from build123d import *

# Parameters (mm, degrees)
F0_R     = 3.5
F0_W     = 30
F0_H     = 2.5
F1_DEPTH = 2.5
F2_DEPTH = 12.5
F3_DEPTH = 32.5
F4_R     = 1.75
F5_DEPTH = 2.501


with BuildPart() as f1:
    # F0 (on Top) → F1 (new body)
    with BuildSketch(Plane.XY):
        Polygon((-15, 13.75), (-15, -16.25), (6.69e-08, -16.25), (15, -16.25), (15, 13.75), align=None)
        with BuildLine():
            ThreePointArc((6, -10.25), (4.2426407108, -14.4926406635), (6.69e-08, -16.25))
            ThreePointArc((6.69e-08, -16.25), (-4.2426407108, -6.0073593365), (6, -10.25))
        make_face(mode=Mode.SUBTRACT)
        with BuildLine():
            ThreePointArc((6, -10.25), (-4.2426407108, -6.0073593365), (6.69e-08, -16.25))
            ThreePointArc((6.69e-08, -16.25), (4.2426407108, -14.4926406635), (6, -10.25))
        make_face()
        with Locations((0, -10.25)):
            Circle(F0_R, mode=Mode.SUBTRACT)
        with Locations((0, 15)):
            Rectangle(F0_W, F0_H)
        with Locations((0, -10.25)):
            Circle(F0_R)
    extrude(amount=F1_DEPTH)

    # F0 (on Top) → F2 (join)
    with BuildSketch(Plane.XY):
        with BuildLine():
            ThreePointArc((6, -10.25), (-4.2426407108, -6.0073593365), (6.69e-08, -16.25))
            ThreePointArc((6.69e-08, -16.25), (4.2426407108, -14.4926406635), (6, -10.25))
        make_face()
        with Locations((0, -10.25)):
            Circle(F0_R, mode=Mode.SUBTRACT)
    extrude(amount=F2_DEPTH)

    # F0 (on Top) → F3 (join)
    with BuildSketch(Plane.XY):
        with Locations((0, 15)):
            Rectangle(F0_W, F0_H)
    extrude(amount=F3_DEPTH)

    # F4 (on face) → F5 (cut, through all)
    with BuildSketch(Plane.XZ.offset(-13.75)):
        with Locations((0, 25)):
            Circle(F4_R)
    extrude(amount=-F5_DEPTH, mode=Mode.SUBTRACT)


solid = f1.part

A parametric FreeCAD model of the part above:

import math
import FreeCAD as App
import Part
import Sketcher
from FreeCAD import Vector
Q = App.Units.Quantity

doc = App.newDocument("Part")
body = doc.addObject("PartDesign::Body", "Body")

# Sketch on XY plane
sketch1 = body.newObject("Sketcher::SketchObject", "Sketch")
sketch1.AttachmentSupport = (doc.getObject("XY_Plane"), [""])
sketch1.MapMode = "FlatFace"
sketch1.addGeometry([
    Part.LineSegment(Vector(15, -16.25, 0), Vector(15, 16.25, 0)),
    Part.LineSegment(Vector(15, 16.25, 0), Vector(-15, 16.25, 0)),
    Part.LineSegment(Vector(-15, 16.25, 0), Vector(-15, -16.25, 0)),
    Part.LineSegment(Vector(-15, -16.25, 0), Vector(15, -16.25, 0)),
], False)
sketch1.addConstraint([
    Sketcher.Constraint("Coincident", 0, 2, 1, 1),
    Sketcher.Constraint("Coincident", 1, 2, 2, 1),
    Sketcher.Constraint("Coincident", 2, 2, 3, 1),
    Sketcher.Constraint("Coincident", 3, 2, 0, 1),
    Sketcher.Constraint("Vertical", 0),
    Sketcher.Constraint("Horizontal", 1),
    Sketcher.Constraint("Vertical", 2),
    Sketcher.Constraint("Horizontal", 3),
    Sketcher.Constraint("Symmetric", 0, 2, 2, 2, -1, 1),
    Sketcher.Constraint("DistanceX", 1, 2, 1, 1, Q("30 mm")),
    Sketcher.Constraint("DistanceY", 0, 1, 0, 2, Q("32.5 mm")),
])
pad1 = body.newObject("PartDesign::Pad", "Pad")
pad1.Profile = sketch1
pad1.Length = 2.5

# Sketch on XY plane
sketch2 = body.newObject("Sketcher::SketchObject", "Sketch001")
sketch2.AttachmentSupport = (doc.getObject("XY_Plane"), [""])
sketch2.MapMode = "FlatFace"
sketch2.addGeometry([
    Part.ArcOfCircle(Part.Circle(Vector(0, -10.25, 0), Vector(0, 0, 1), 6), math.radians(0), math.radians(270.000001)),
    Part.ArcOfCircle(Part.Circle(Vector(0, -10.25, 0), Vector(0, 0, 1), 6), math.radians(-89.999999), math.radians(0)),
    Part.Circle(Vector(0, -10.25, 0), Vector(0, 0, 1), 3.5),
], False)
sketch2.addConstraint([
    Sketcher.Constraint("Tangent", 0, 1, 1, 2),
    Sketcher.Constraint("Coincident", 1, 1, 0, 2),
    Sketcher.Constraint("Coincident", 2, 3, 0, 3),
    Sketcher.Constraint("PointOnObject", 0, 3, -2),
    Sketcher.Constraint("PointOnObject", 1, 1, -2),
    Sketcher.Constraint("Horizontal", 2, 3, 0, 1),
    Sketcher.Constraint("Diameter", 2, Q("7 mm")),
    Sketcher.Constraint("Radius", 0, Q("6 mm")),
    Sketcher.Constraint("DistanceY", 0, 3, -1, 1, Q("10.25 mm")),
])
pad2 = body.newObject("PartDesign::Pad", "Pad001")
pad2.Profile = sketch2
pad2.Length = 12.5

# Sketch on XY plane
sketch3 = body.newObject("Sketcher::SketchObject", "Sketch002")
sketch3.AttachmentSupport = (doc.getObject("XY_Plane"), [""])
sketch3.MapMode = "FlatFace"
sketch3.addGeometry([
    Part.LineSegment(Vector(-15, 16.25, 0), Vector(-15, 13.75, 0)),
    Part.LineSegment(Vector(-15, 13.75, 0), Vector(15, 13.75, 0)),
    Part.LineSegment(Vector(15, 13.75, 0), Vector(15, 16.25, 0)),
    Part.LineSegment(Vector(15, 16.25, 0), Vector(-15, 16.25, 0)),
], False)
sketch3.addConstraint([
    Sketcher.Constraint("Coincident", 0, 2, 1, 1),
    Sketcher.Constraint("Coincident", 1, 2, 2, 1),
    Sketcher.Constraint("Coincident", 2, 2, 3, 1),
    Sketcher.Constraint("Coincident", 3, 2, 0, 1),
    Sketcher.Constraint("Vertical", 0),
    Sketcher.Constraint("Horizontal", 1),
    Sketcher.Constraint("Vertical", 2),
    Sketcher.Constraint("Horizontal", 3),
    Sketcher.Constraint("DistanceX", 1, 1, 1, 2, Q("30 mm")),
    Sketcher.Constraint("DistanceY", 0, 2, 0, 1, Q("2.5 mm")),
    Sketcher.Constraint("DistanceX", 0, 2, -1, 1, Q("15 mm")),
    Sketcher.Constraint("DistanceY", -1, 1, 0, 2, Q("13.75 mm")),
])
pad3 = body.newObject("PartDesign::Pad", "Pad002")
pad3.Profile = sketch3
pad3.Length = 32.5

# Sketch on XZ plane
sketch4 = body.newObject("Sketcher::SketchObject", "Sketch003")
sketch4.AttachmentSupport = (doc.getObject("XZ_Plane"), [""])
sketch4.MapMode = "FlatFace"
sketch4.AttachmentOffset = App.Placement(Vector(0, 0, -13.75), App.Rotation())
sketch4.addGeometry(Part.Circle(Vector(0, 25, 0), Vector(0, 0, 1), 1.75), False)
sketch4.addConstraint([
    Sketcher.Constraint("PointOnObject", 0, 3, -2),
    Sketcher.Constraint("Diameter", 0, Q("3.5 mm")),
    Sketcher.Constraint("DistanceY", -1, 1, 0, 3, Q("25 mm")),
])
pocket1 = body.newObject("PartDesign::Pocket", "Pocket")
pocket1.Profile = sketch4
pocket1.Type = "ThroughAll"

doc.recompute()
